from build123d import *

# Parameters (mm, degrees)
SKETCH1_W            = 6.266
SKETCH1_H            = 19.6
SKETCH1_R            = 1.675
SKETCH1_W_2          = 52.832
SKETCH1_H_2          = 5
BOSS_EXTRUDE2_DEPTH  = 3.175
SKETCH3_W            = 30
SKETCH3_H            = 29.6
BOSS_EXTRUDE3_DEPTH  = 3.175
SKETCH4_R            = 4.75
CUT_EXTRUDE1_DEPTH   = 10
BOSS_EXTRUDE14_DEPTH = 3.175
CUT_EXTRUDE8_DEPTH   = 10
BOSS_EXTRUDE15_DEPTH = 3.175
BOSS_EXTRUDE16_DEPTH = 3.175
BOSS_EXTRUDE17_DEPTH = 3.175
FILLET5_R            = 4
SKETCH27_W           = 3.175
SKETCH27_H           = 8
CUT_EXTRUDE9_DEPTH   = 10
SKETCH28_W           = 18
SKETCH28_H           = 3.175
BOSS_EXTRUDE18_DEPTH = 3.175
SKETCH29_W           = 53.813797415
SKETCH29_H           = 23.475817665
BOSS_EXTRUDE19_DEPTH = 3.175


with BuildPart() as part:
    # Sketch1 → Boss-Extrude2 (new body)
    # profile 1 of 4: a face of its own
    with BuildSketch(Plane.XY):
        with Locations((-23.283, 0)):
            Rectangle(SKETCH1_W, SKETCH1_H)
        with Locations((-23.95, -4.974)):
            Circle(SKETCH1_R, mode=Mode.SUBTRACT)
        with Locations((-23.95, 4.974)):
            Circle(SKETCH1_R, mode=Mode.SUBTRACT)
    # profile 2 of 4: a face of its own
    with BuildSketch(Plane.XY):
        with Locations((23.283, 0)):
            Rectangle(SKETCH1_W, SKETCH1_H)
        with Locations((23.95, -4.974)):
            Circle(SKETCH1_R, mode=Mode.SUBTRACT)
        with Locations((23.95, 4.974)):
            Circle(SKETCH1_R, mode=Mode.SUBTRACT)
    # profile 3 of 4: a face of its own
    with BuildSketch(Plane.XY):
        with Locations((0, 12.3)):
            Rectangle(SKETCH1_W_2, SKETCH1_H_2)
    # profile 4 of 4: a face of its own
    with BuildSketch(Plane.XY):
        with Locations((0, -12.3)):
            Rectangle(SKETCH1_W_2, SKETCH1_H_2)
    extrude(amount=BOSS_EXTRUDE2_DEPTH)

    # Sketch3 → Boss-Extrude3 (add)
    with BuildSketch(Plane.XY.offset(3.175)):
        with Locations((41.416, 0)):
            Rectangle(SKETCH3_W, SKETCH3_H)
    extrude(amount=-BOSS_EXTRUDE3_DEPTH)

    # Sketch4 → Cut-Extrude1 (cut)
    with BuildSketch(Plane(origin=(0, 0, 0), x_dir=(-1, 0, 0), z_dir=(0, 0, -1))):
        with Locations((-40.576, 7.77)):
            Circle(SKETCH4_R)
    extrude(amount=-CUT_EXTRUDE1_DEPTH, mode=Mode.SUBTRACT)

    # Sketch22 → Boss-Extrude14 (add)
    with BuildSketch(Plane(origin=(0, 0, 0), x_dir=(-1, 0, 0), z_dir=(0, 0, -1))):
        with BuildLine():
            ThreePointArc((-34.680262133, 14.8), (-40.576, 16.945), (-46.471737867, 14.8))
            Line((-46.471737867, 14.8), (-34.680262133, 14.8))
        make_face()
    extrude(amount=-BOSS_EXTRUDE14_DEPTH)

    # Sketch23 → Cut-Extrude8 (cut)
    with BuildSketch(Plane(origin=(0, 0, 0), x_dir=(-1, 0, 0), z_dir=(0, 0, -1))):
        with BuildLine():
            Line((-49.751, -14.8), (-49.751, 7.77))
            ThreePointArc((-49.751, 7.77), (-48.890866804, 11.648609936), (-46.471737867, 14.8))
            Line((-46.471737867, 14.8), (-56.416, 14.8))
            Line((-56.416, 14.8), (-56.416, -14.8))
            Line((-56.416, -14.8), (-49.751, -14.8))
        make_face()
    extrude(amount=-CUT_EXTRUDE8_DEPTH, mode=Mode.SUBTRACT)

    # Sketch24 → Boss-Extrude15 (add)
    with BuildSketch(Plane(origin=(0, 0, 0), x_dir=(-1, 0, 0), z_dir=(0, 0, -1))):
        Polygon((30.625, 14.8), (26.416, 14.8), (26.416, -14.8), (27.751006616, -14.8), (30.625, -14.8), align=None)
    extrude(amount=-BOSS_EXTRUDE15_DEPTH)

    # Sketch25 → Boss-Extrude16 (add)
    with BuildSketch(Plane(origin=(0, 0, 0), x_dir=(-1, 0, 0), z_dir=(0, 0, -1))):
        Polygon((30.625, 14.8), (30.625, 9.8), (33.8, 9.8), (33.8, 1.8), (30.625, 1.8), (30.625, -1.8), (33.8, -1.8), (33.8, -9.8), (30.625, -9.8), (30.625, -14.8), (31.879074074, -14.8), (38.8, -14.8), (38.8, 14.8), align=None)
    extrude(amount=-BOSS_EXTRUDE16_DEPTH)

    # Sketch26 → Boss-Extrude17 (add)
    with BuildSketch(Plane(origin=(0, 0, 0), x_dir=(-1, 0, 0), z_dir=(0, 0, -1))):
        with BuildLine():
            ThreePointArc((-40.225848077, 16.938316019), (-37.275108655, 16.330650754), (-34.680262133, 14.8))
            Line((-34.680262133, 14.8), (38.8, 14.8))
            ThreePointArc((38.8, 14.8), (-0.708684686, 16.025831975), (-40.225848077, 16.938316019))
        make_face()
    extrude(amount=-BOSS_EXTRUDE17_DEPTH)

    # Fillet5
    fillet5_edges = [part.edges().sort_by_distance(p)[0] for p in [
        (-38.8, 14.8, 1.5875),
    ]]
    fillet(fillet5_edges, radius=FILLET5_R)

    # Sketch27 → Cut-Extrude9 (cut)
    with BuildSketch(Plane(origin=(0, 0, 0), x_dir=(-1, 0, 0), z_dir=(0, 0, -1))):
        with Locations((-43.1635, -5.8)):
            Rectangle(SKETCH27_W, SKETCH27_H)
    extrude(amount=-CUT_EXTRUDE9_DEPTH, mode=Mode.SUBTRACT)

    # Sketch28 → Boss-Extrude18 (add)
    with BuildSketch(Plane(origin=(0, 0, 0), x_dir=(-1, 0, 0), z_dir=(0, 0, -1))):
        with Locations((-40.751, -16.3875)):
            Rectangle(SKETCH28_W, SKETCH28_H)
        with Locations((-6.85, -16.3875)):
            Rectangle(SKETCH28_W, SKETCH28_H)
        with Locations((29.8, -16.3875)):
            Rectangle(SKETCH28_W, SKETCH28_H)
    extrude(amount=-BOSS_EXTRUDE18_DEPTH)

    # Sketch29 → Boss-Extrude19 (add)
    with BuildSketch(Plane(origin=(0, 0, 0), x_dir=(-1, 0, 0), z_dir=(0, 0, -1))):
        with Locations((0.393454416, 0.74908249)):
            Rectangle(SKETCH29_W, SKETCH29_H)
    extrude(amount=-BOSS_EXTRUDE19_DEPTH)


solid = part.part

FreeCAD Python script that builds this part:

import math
import FreeCAD as App
import Part
import Sketcher


def edges_at(feature, points):
    """Names of the edges that pass closest to the given points."""
    edges = feature.Shape.Edges
    near = lambda p: min(range(len(edges)), key=lambda i: edges[i].distToShape(Part.Vertex(*p))[0])
    return sorted({f"Edge{near(p) + 1}" for p in points})


def add_polygon(sketch, points):
    """Adds a closed chain of lines whose ends are joined by coincident constraints."""
    first, n = sketch.GeometryCount, len(points)
    for a, b in zip(points, points[1:] + points[:1]):
        sketch.addGeometry(Part.LineSegment(App.Vector(*a, 0), App.Vector(*b, 0)), False)
    for i in range(n):
        sketch.addConstraint(Sketcher.Constraint("Coincident", first + i, 2, first + (i + 1) % n, 1))

doc = App.newDocument("Part")
params = doc.addObject("Spreadsheet::Sheet", "Params")
for row, (alias, value) in enumerate([
    ("sketch1_diameter", "3.35 mm"),
    ("sketch1_width", "40.3 mm"),
    ("sketch1_height", "29.6 mm"),
    ("sketch1_height2", "19.6 mm"),
    ("pad1_length", "3.175 mm"),
    ("sketch2_width", "30 mm"),
    ("sketch2_height", "29.6 mm"),
    ("pad2_length", "3.175 mm"),
    ("sketch3_diameter", "9.5 mm"),
    ("pocket1_length", "10 mm"),
    ("pad3_length", "3.175 mm"),
    ("sketch5_height", "29.6 mm"),
    ("sketch5_height2", "22.57 mm"),
    ("pocket2_length", "10 mm"),
    ("sketch6_height", "29.6 mm"),
    ("pad4_length", "3.175 mm"),
    ("sketch7_height", "5 mm"),
    ("sketch7_height2", "8 mm"),
    ("sketch7_height3", "3.6 mm"),
    ("pad5_length", "3.175 mm"),
    ("pad6_length", "3.175 mm"),
    ("fillet_radius", "4 mm"),
    ("sketch9_height", "8 mm"),
    ("pocket3_length", "10 mm"),
    ("sketch10_width", "18 mm"),
    ("pad7_length", "3.175 mm"),
    ("pad8_length", "3.175 mm"),
], start=1):
    params.set(f"A{row}", alias)
    params.set(f"B{row}", "=" + value)
    params.setAlias(f"B{row}", alias)

body = doc.addObject("PartDesign::Body", "Body")

# Sketch on XY plane
sketch1 = doc.addObject("Sketcher::SketchObject", "Sketch")
body.addObject(sketch1)
sketch1.AttachmentSupport = (doc.XY_Plane, [""])
sketch1.MapMode = "FlatFace"
add_polygon(sketch1, [(-26.4, -14.8), (26.4, -14.8), (26.4, 14.8), (-26.4, 14.8)])  # lines 0-3
add_polygon(sketch1, [(-20.1, -9.8), (-20.1, 9.8), (20.1, 9.8), (20.1, -9.8)])  # lines 4-7
sketch1.addGeometry(Part.Circle(App.Vector(-23.9, -5, 0), App.Vector(0, 0, 1), 1.7), False)  # 8
sketch1.addGeometry(Part.Circle(App.Vector(-23.9, 5, 0), App.Vector(0, 0, 1), 1.7), False)  # 9
sketch1.addGeometry(Part.Circle(App.Vector(23.9, 5, 0), App.Vector(0, 0, 1), 1.7), False)  # 10
sketch1.addGeometry(Part.Circle(App.Vector(23.9, -5, 0), App.Vector(0, 0, 1), 1.7), False)  # 11
sketch1.addConstraint([
    Sketcher.Constraint("Horizontal", 0),
    Sketcher.Constraint("Vertical", 1),
    Sketcher.Constraint("Horizontal", 2),
    Sketcher.Constraint("Vertical", 3),
    Sketcher.Constraint("Vertical", 4),
    Sketcher.Constraint("Horizontal", 5),
    Sketcher.Constraint("Vertical", 6),
    Sketcher.Constraint("Horizontal", 7),
    Sketcher.Constraint("Equal", 8, 9),
    Sketcher.Constraint("Equal", 9, 10),
    Sketcher.Constraint("Equal", 10, 11),
    Sketcher.Constraint("Symmetric", 8, 3, 10, 3, -1, 1),
    Sketcher.Constraint("Symmetric", 9, 3, 11, 3, -1, 1),
    Sketcher.Constraint("Symmetric", 0, 2, 2, 2, -1, 1),
    Sketcher.Constraint("Symmetric", 4, 2, 6, 2, -1, 1),
    Sketcher.Constraint("Symmetric", 9, 3, 10, 3, -2),
    Sketcher.Constraint("Diameter", 8, 3.35),
    Sketcher.Constraint("DistanceX", 5, 1, 5, 2, 40.3),
    Sketcher.Constraint("DistanceY", 1, 1, 1, 2, 29.6),
    Sketcher.Constraint("DistanceY", 4, 1, 4, 2, 19.6),
    Sketcher.Constraint("DistanceX", 9, 3, 10, 3, 47.9),
    Sketcher.Constraint("DistanceX", 0, 1, 0, 2, 52.832),
    Sketcher.Constraint("DistanceY", 8, 3, -1, 1, 4.974),
])
sketch1.setExpression("Constraints[24]", "Params.sketch1_diameter")
sketch1.setExpression("Constraints[25]", "Params.sketch1_width")
sketch1.setExpression("Constraints[26]", "Params.sketch1_height")
sketch1.setExpression("Constraints[27]", "Params.sketch1_height2")
pad1 = doc.addObject("PartDesign::Pad", "Pad")
body.addObject(pad1)
pad1.Profile = sketch1
pad1.setExpression("Length", "Params.pad1_length")

# Sketch on XY plane
sketch2 = doc.addObject("Sketcher::SketchObject", "Sketch001")
body.addObject(sketch2)
sketch2.AttachmentSupport = (doc.XY_Plane, [""])
sketch2.MapMode = "FlatFace"
sketch2.AttachmentOffset = App.Placement(App.Vector(0, 0, 3.175), App.Rotation())
add_polygon(sketch2, [(26, 15), (26, -15), (56, -15), (56, 15)])  # lines 0-3
sketch2.addConstraint([
    Sketcher.Constraint("Vertical", 0),
    Sketcher.Constraint("Horizontal", 1),
    Sketcher.Constraint("Vertical", 2),
    Sketcher.Constraint("Horizontal", 3),
    Sketcher.Constraint("DistanceX", 1, 1, 1, 2, 30.0),
    Sketcher.Constraint("DistanceY", 0, 2, 0, 1, 29.6),
    Sketcher.Constraint("DistanceY", 0, 2, -1, 1, 14.8),
    Sketcher.Constraint("DistanceX", -1, 1, 0, 2, 26.416),
])
sketch2.setExpression("Constraints[8]", "Params.sketch2_width")
sketch2.setExpression("Constraints[9]", "Params.sketch2_height")
pad2 = doc.addObject("PartDesign::Pad", "Pad001")
body.addObject(pad2)
pad2.Profile = sketch2
pad2.setExpression("Length", "Params.pad2_length")
pad2.Reversed = True

# Sketch on XY plane
sketch3 = doc.addObject("Sketcher::SketchObject", "Sketch002")
body.addObject(sketch3)
sketch3.AttachmentSupport = (doc.XY_Plane, [""])
sketch3.MapMode = "FlatFace"
sketch3.addGeometry(Part.Circle(App.Vector(40.6, 7.8, 0), App.Vector(0, 0, 1), 4.8), False)
sketch3.addConstraint([
    Sketcher.Constraint("Diameter", 0, 9.5),
    Sketcher.Constraint("DistanceY", -1, 1, 0, 3, 7.77),
    Sketcher.Constraint("DistanceX", -1, 1, 0, 3, 40.576),
])
sketch3.setExpression("Constraints[0]", "Params.sketch3_diameter")
pocket1 = doc.addObject("PartDesign::Pocket", "Pocket")
body.addObject(pocket1)
pocket1.Profile = sketch3
pocket1.setExpression("Length", "Params.pocket1_length")
pocket1.Reversed = True

# Sketch on XY plane
sketch4 = doc.addObject("Sketcher::SketchObject", "Sketch003")
body.addObject(sketch4)
sketch4.AttachmentSupport = (doc.XY_Plane, [""])
sketch4.MapMode = "FlatFace"
sketch4.addGeometry([
    Part.ArcOfCircle(Part.Circle(App.Vector(41, 8, 0), App.Vector(0, 0, 1), 9), math.radians(50), math.radians(130)),
    Part.LineSegment(App.Vector(46, 15, 0), App.Vector(35, 15, 0)),
], False)
sketch4.addConstraint([
    Sketcher.Constraint("Coincident", 0, 1, 1, 1),
    Sketcher.Constraint("Coincident", 1, 2, 0, 2),
    Sketcher.Constraint("Horizontal", 1),
    Sketcher.Constraint("Radius", 0, 9.175),
    Sketcher.Constraint("DistanceY", -1, 1, 0, 1, 14.8),
    Sketcher.Constraint("DistanceY", -1, 1, 0, 3, 7.77),
    Sketcher.Constraint("DistanceX", -1, 1, 0, 3, 40.576),
])
pad3 = doc.addObject("PartDesign::Pad", "Pad002")
body.addObject(pad3)
pad3.Profile = sketch4
pad3.setExpression("Length", "Params.pad3_length")

# Sketch on XY plane
sketch5 = doc.addObject("Sketcher::SketchObject", "Sketch004")
body.addObject(sketch5)
sketch5.AttachmentSupport = (doc.XY_Plane, [""])
sketch5.MapMode = "FlatFace"
sketch5.addGeometry([
    Part.LineSegment(App.Vector(50, -15, 0), App.Vector(50, 8, 0)),  # 0
    Part.ArcOfCircle(Part.Circle(App.Vector(41, 8, 0), App.Vector(0, 0, 1), 9), math.radians(0), math.radians(50)),  # 1
    Part.LineSegment(App.Vector(46, 15, 0), App.Vector(56, 15, 0)),  # 2
    Part.LineSegment(App.Vector(56, 15, 0), App.Vector(56, -15, 0)),  # 3
    Part.LineSegment(App.Vector(56, -15, 0), App.Vector(50, -15, 0)),  # 4
], False)
sketch5.addConstraint([
    Sketcher.Constraint("Tangent", 0, 2, 1, 1),
    Sketcher.Constraint("Coincident", 1, 2, 2, 1),
    Sketcher.Constraint("Coincident", 2, 2, 3, 1),
    Sketcher.Constraint("Coincident", 3, 2, 4, 1),
    Sketcher.Constraint("Coincident", 4, 2, 0, 1),
    Sketcher.Constraint("Vertical", 0),
    Sketcher.Constraint("Horizontal", 2),
    Sketcher.Constraint("Vertical", 3),
    Sketcher.Constraint("Horizontal", 4),
    Sketcher.Constraint("DistanceY", 3, 2, 3, 1, 29.6),
    Sketcher.Constraint("Radius", 1, 9.175),
    Sketcher.Constraint("DistanceY", 0, 1, 0, 2, 22.57),
    Sketcher.Constraint("DistanceY", -1, 1, 1, 2, 14.8),
    Sketcher.Constraint("DistanceX", 4, 2, 4, 1, 6.665),
    Sketcher.Constraint("DistanceX", -1, 1, 1, 3, 40.576),
])
sketch5.setExpression("Constraints[9]", "Params.sketch5_height")
sketch5.setExpression("Constraints[11]", "Params.sketch5_height2")
pocket2 = doc.addObject("PartDesign::Pocket", "Pocket001")
body.addObject(pocket2)
pocket2.Profile = sketch5
pocket2.setExpression("Length", "Params.pocket2_length")
pocket2.Reversed = True

# Sketch on XY plane
sketch6 = doc.addObject("Sketcher::SketchObject", "Sketch005")
body.addObject(sketch6)
sketch6.AttachmentSupport = (doc.XY_Plane, [""])
sketch6.MapMode = "FlatFace"
add_polygon(sketch6, [(-30.6, 14.8), (-26.4, 14.8), (-26.4, -14.8), (-30.6, -14.8)])  # lines 0-3
sketch6.addConstraint([
    Sketcher.Constraint("Horizontal", 0),
    Sketcher.Constraint("Vertical", 1),
    Sketcher.Constraint("Horizontal", 2),
    Sketcher.Constraint("Vertical", 3),
    Sketcher.Constraint("DistanceY", 1, 2, 1, 1, 29.6),
    Sketcher.Constraint("DistanceY", -1, 1, 0, 2, 14.8),
    Sketcher.Constraint("DistanceX", 0, 1, 0, 2, 4.209),
    Sketcher.Constraint("DistanceX", 0, 2, -1, 1, 26.416),
])
sketch6.setExpression("Constraints[8]", "Params.sketch6_height")
pad4 = doc.addObject("PartDesign::Pad", "Pad003")
body.addObject(pad4)
pad4.Profile = sketch6
pad4.setExpression("Length", "Params.pad4_length")

# Sketch on XY plane
sketch7 = doc.addObject("Sketcher::SketchObject", "Sketch006")
body.addObject(sketch7)
sketch7.AttachmentSupport = (doc.XY_Plane, [""])
sketch7.MapMode = "FlatFace"
add_polygon(sketch7, [(-30.6, 14.8), (-30.6, 9.8), (-33.8, 9.8), (-33.8, 1.8), (-30.6, 1.8), (-30.6, -1.8), (-33.8, -1.8), (-33.8, -9.8), (-30.6, -9.8), (-30.6, -14.8), (-38.8, -14.8), (-38.8, 14.8)])  # lines 0-11
sketch7.addConstraint([
    Sketcher.Constraint("Vertical", 0),
    Sketcher.Constraint("Horizontal", 1),
    Sketcher.Constraint("Vertical", 2),
    Sketcher.Constraint("Horizontal", 3),
    Sketcher.Constraint("Vertical", 4),
    Sketcher.Constraint("Horizontal", 5),
    Sketcher.Constraint("Vertical", 6),
    Sketcher.Constraint("Horizontal", 7),
    Sketcher.Constraint("Vertical", 8),
    Sketcher.Constraint("Horizontal", 9),
    Sketcher.Constraint("Vertical", 10),
    Sketcher.Constraint("Horizontal", 11),
    Sketcher.Constraint("Symmetric", 2, 2, 5, 2, -1),
    Sketcher.Constraint("Symmetric", 0, 2, 7, 2, -1),
    Sketcher.Constraint("Vertical", 0, 2, 3, 2),
    Sketcher.Constraint("Equal", 0, 8),
    Sketcher.Constraint("DistanceY", 0, 2, 0, 1, 5.0),
    Sketcher.Constraint("DistanceY", 2, 2, 2, 1, 8.0),
    Sketcher.Constraint("DistanceY", 4, 2, 4, 1, 3.6),
    Sketcher.Constraint("DistanceX", 9, 2, 6, 2, 5.0),
    Sketcher.Constraint("DistanceX", 1, 2, -1, 1, 33.8),
    Sketcher.Constraint("DistanceX", 1, 2, 1, 1, 3.175),
])
sketch7.setExpression("Constraints[28]", "Params.sketch7_height")
sketch7.setExpression("Constraints[29]", "Params.sketch7_height2")
sketch7.setExpression("Constraints[30]", "Params.sketch7_height3")
pad5 = doc.addObject("PartDesign::Pad", "Pad004")
body.addObject(pad5)
pad5.Profile = sketch7
pad5.setExpression("Length", "Params.pad5_length")

# Sketch on XY plane
sketch8 = doc.addObject("Sketcher::SketchObject", "Sketch007")
body.addObject(sketch8)
sketch8.AttachmentSupport = (doc.XY_Plane, [""])
sketch8.MapMode = "FlatFace"
sketch8.addGeometry([
    Part.ArcOfCircle(Part.Circle(App.Vector(41, 8, 0), App.Vector(0, 0, 1), 9), math.radians(92), math.radians(130)),
    Part.LineSegment(App.Vector(35, 15, 0), App.Vector(-39, 15, 0)),
    Part.ArcOfCircle(Part.Circle(App.Vector(136, -4967, 0), App.Vector(0, 0, 1), 4984), math.radians(91.1), math.radians(92)),
], False)
sketch8.addConstraint([
    Sketcher.Constraint("Coincident", 0, 2, 1, 1),
    Sketcher.Constraint("Coincident", 1, 2, 2, 2),
    Sketcher.Constraint("Coincident", 2, 1, 0, 1),
    Sketcher.Constraint("Horizontal", 1),
    Sketcher.Constraint("Radius", 0, 9.175),
    Sketcher.Constraint("DistanceY", -1, 1, 0, 2, 14.8),
    Sketcher.Constraint("DistanceX", 1, 2, -1, 1, 38.8),
    Sketcher.Constraint("DistanceY", -1, 1, 0, 3, 7.77),
    Sketcher.Constraint("Radius", 2, 4984.45023),
    Sketcher.Constraint("DistanceX", -1, 1, 0, 3, 40.576),
    Sketcher.Constraint("DistanceX", -1, 1, 2, 3, 135.530776),
])
pad6 = doc.addObject("PartDesign::Pad", "Pad005")
body.addObject(pad6)
pad6.Profile = sketch8
pad6.setExpression("Length", "Params.pad6_length")
doc.recompute()

fillet = doc.addObject("PartDesign::Fillet", "Fillet")
body.addObject(fillet)
fillet.Base = (pad6, edges_at(pad6, [(-38.8, 14.8, 1.587)]))
fillet.setExpression("Radius", "Params.fillet_radius")

# Sketch on XY plane
sketch9 = doc.addObject("Sketcher::SketchObject", "Sketch008")
body.addObject(sketch9)
sketch9.AttachmentSupport = (doc.XY_Plane, [""])
sketch9.MapMode = "FlatFace"
add_polygon(sketch9, [(44.8, -1.8), (44.8, -9.8), (41.6, -9.8), (41.6, -1.8)])  # lines 0-3
sketch9.addConstraint([
    Sketcher.Constraint("Vertical", 0),
    Sketcher.Constraint("Horizontal", 1),
    Sketcher.Constraint("Vertical", 2),
    Sketcher.Constraint("Horizontal", 3),
    Sketcher.Constraint("DistanceY", 0, 2, 0, 1, 8.0),
    Sketcher.Constraint("DistanceY", 0, 2, -1, 1, 9.8),
    Sketcher.Constraint("DistanceX", 1, 2, 1, 1, 3.175),
    Sketcher.Constraint("DistanceX", -1, 1, 0, 2, 44.751),
])
sketch9.setExpression("Constraints[8]", "Params.sketch9_height")
pocket3 = doc.addObject("PartDesign::Pocket", "Pocket002")
body.addObject(pocket3)
pocket3.Profile = sketch9
pocket3.setExpression("Length", "Params.pocket3_length")
pocket3.Reversed = True

# Sketch on XY plane
sketch10 = doc.addObject("Sketcher::SketchObject", "Sketch009")
body.addObject(sketch10)
sketch10.AttachmentSupport = (doc.XY_Plane, [""])
sketch10.MapMode = "FlatFace"
add_polygon(sketch10, [(49.8, -14.8), (49.8, -18), (31.8, -18), (31.8, -14.8)])  # lines 0-3
add_polygon(sketch10, [(15.8, -14.8), (15.8, -18), (-2.1, -18), (-2.1, -14.8)])  # lines 4-7
add_polygon(sketch10, [(-20.8, -14.8), (-20.8, -18), (-38.8, -18), (-38.8, -14.8)])  # lines 8-11
sketch10.addConstraint([
    Sketcher.Constraint("Vertical", 0),
    Sketcher.Constraint("Horizontal", 1),
    Sketcher.Constraint("Vertical", 2),
    Sketcher.Constraint("Horizontal", 3),
    Sketcher.Constraint("Vertical", 4),
    Sketcher.Constraint("Horizontal", 5),
    Sketcher.Constraint("Vertical", 6),
    Sketcher.Constraint("Horizontal", 7),
    Sketcher.Constraint("Vertical", 8),
    Sketcher.Constraint("Horizontal", 9),
    Sketcher.Constraint("Vertical", 10),
    Sketcher.Constraint("Horizontal", 11),
    Sketcher.Constraint("Horizontal", 1, 2, 4, 2),
    Sketcher.Constraint("Horizontal", 3, 2, 6, 2),
    Sketcher.Constraint("Horizontal", 5, 2, 8, 2),
    Sketcher.Constraint("Horizontal", 7, 2, 10, 2),
    Sketcher.Constraint("Equal", 3, 5),
    Sketcher.Constraint("Equal", 7, 9),
    Sketcher.Constraint("DistanceX", 1, 2, 1, 1, 18.0),
    Sketcher.Constraint("DistanceY", 2, 2, -1, 1, 14.8),
    Sketcher.Constraint("DistanceX", 8, 2, -1, 1, 20.8),
    Sketcher.Constraint("DistanceY", 0, 2, 0, 1, 3.175),
    Sketcher.Constraint("DistanceX", -1, 1, 4, 2, 15.85),
    Sketcher.Constraint("DistanceX", -1, 1, 0, 2, 49.751),
])
sketch10.setExpression("Constraints[30]", "Params.sketch10_width")
pad7 = doc.addObject("PartDesign::Pad", "Pad006")
body.addObject(pad7)
pad7.Profile = sketch10
pad7.setExpression("Length", "Params.pad7_length")

# Sketch on XY plane
sketch11 = doc.addObject("Sketcher::SketchObject", "Sketch010")
body.addObject(sketch11)
sketch11.AttachmentSupport = (doc.XY_Plane, [""])
sketch11.MapMode = "FlatFace"
add_polygon(sketch11, [(27, 12), (27, -11), (-27, -11), (-27, 12)])  # lines 0-3
sketch11.addConstraint([
    Sketcher.Constraint("Vertical", 0),
    Sketcher.Constraint("Horizontal", 1),
    Sketcher.Constraint("Vertical", 2),
    Sketcher.Constraint("Horizontal", 3),
    Sketcher.Constraint("DistanceX", 1, 2, 1, 1, 53.813797),
    Sketcher.Constraint("DistanceY", 0, 2, 0, 1, 23.475818),
    Sketcher.Constraint("DistanceY", -1, 1, 2, 2, 12.486991),
    Sketcher.Constraint("DistanceX", -1, 1, 0, 2, 26.513444),
])
pad8 = doc.addObject("PartDesign::Pad", "Pad007")
body.addObject(pad8)
pad8.Profile = sketch11
pad8.setExpression("Length", "Params.pad8_length")

doc.recompute()
